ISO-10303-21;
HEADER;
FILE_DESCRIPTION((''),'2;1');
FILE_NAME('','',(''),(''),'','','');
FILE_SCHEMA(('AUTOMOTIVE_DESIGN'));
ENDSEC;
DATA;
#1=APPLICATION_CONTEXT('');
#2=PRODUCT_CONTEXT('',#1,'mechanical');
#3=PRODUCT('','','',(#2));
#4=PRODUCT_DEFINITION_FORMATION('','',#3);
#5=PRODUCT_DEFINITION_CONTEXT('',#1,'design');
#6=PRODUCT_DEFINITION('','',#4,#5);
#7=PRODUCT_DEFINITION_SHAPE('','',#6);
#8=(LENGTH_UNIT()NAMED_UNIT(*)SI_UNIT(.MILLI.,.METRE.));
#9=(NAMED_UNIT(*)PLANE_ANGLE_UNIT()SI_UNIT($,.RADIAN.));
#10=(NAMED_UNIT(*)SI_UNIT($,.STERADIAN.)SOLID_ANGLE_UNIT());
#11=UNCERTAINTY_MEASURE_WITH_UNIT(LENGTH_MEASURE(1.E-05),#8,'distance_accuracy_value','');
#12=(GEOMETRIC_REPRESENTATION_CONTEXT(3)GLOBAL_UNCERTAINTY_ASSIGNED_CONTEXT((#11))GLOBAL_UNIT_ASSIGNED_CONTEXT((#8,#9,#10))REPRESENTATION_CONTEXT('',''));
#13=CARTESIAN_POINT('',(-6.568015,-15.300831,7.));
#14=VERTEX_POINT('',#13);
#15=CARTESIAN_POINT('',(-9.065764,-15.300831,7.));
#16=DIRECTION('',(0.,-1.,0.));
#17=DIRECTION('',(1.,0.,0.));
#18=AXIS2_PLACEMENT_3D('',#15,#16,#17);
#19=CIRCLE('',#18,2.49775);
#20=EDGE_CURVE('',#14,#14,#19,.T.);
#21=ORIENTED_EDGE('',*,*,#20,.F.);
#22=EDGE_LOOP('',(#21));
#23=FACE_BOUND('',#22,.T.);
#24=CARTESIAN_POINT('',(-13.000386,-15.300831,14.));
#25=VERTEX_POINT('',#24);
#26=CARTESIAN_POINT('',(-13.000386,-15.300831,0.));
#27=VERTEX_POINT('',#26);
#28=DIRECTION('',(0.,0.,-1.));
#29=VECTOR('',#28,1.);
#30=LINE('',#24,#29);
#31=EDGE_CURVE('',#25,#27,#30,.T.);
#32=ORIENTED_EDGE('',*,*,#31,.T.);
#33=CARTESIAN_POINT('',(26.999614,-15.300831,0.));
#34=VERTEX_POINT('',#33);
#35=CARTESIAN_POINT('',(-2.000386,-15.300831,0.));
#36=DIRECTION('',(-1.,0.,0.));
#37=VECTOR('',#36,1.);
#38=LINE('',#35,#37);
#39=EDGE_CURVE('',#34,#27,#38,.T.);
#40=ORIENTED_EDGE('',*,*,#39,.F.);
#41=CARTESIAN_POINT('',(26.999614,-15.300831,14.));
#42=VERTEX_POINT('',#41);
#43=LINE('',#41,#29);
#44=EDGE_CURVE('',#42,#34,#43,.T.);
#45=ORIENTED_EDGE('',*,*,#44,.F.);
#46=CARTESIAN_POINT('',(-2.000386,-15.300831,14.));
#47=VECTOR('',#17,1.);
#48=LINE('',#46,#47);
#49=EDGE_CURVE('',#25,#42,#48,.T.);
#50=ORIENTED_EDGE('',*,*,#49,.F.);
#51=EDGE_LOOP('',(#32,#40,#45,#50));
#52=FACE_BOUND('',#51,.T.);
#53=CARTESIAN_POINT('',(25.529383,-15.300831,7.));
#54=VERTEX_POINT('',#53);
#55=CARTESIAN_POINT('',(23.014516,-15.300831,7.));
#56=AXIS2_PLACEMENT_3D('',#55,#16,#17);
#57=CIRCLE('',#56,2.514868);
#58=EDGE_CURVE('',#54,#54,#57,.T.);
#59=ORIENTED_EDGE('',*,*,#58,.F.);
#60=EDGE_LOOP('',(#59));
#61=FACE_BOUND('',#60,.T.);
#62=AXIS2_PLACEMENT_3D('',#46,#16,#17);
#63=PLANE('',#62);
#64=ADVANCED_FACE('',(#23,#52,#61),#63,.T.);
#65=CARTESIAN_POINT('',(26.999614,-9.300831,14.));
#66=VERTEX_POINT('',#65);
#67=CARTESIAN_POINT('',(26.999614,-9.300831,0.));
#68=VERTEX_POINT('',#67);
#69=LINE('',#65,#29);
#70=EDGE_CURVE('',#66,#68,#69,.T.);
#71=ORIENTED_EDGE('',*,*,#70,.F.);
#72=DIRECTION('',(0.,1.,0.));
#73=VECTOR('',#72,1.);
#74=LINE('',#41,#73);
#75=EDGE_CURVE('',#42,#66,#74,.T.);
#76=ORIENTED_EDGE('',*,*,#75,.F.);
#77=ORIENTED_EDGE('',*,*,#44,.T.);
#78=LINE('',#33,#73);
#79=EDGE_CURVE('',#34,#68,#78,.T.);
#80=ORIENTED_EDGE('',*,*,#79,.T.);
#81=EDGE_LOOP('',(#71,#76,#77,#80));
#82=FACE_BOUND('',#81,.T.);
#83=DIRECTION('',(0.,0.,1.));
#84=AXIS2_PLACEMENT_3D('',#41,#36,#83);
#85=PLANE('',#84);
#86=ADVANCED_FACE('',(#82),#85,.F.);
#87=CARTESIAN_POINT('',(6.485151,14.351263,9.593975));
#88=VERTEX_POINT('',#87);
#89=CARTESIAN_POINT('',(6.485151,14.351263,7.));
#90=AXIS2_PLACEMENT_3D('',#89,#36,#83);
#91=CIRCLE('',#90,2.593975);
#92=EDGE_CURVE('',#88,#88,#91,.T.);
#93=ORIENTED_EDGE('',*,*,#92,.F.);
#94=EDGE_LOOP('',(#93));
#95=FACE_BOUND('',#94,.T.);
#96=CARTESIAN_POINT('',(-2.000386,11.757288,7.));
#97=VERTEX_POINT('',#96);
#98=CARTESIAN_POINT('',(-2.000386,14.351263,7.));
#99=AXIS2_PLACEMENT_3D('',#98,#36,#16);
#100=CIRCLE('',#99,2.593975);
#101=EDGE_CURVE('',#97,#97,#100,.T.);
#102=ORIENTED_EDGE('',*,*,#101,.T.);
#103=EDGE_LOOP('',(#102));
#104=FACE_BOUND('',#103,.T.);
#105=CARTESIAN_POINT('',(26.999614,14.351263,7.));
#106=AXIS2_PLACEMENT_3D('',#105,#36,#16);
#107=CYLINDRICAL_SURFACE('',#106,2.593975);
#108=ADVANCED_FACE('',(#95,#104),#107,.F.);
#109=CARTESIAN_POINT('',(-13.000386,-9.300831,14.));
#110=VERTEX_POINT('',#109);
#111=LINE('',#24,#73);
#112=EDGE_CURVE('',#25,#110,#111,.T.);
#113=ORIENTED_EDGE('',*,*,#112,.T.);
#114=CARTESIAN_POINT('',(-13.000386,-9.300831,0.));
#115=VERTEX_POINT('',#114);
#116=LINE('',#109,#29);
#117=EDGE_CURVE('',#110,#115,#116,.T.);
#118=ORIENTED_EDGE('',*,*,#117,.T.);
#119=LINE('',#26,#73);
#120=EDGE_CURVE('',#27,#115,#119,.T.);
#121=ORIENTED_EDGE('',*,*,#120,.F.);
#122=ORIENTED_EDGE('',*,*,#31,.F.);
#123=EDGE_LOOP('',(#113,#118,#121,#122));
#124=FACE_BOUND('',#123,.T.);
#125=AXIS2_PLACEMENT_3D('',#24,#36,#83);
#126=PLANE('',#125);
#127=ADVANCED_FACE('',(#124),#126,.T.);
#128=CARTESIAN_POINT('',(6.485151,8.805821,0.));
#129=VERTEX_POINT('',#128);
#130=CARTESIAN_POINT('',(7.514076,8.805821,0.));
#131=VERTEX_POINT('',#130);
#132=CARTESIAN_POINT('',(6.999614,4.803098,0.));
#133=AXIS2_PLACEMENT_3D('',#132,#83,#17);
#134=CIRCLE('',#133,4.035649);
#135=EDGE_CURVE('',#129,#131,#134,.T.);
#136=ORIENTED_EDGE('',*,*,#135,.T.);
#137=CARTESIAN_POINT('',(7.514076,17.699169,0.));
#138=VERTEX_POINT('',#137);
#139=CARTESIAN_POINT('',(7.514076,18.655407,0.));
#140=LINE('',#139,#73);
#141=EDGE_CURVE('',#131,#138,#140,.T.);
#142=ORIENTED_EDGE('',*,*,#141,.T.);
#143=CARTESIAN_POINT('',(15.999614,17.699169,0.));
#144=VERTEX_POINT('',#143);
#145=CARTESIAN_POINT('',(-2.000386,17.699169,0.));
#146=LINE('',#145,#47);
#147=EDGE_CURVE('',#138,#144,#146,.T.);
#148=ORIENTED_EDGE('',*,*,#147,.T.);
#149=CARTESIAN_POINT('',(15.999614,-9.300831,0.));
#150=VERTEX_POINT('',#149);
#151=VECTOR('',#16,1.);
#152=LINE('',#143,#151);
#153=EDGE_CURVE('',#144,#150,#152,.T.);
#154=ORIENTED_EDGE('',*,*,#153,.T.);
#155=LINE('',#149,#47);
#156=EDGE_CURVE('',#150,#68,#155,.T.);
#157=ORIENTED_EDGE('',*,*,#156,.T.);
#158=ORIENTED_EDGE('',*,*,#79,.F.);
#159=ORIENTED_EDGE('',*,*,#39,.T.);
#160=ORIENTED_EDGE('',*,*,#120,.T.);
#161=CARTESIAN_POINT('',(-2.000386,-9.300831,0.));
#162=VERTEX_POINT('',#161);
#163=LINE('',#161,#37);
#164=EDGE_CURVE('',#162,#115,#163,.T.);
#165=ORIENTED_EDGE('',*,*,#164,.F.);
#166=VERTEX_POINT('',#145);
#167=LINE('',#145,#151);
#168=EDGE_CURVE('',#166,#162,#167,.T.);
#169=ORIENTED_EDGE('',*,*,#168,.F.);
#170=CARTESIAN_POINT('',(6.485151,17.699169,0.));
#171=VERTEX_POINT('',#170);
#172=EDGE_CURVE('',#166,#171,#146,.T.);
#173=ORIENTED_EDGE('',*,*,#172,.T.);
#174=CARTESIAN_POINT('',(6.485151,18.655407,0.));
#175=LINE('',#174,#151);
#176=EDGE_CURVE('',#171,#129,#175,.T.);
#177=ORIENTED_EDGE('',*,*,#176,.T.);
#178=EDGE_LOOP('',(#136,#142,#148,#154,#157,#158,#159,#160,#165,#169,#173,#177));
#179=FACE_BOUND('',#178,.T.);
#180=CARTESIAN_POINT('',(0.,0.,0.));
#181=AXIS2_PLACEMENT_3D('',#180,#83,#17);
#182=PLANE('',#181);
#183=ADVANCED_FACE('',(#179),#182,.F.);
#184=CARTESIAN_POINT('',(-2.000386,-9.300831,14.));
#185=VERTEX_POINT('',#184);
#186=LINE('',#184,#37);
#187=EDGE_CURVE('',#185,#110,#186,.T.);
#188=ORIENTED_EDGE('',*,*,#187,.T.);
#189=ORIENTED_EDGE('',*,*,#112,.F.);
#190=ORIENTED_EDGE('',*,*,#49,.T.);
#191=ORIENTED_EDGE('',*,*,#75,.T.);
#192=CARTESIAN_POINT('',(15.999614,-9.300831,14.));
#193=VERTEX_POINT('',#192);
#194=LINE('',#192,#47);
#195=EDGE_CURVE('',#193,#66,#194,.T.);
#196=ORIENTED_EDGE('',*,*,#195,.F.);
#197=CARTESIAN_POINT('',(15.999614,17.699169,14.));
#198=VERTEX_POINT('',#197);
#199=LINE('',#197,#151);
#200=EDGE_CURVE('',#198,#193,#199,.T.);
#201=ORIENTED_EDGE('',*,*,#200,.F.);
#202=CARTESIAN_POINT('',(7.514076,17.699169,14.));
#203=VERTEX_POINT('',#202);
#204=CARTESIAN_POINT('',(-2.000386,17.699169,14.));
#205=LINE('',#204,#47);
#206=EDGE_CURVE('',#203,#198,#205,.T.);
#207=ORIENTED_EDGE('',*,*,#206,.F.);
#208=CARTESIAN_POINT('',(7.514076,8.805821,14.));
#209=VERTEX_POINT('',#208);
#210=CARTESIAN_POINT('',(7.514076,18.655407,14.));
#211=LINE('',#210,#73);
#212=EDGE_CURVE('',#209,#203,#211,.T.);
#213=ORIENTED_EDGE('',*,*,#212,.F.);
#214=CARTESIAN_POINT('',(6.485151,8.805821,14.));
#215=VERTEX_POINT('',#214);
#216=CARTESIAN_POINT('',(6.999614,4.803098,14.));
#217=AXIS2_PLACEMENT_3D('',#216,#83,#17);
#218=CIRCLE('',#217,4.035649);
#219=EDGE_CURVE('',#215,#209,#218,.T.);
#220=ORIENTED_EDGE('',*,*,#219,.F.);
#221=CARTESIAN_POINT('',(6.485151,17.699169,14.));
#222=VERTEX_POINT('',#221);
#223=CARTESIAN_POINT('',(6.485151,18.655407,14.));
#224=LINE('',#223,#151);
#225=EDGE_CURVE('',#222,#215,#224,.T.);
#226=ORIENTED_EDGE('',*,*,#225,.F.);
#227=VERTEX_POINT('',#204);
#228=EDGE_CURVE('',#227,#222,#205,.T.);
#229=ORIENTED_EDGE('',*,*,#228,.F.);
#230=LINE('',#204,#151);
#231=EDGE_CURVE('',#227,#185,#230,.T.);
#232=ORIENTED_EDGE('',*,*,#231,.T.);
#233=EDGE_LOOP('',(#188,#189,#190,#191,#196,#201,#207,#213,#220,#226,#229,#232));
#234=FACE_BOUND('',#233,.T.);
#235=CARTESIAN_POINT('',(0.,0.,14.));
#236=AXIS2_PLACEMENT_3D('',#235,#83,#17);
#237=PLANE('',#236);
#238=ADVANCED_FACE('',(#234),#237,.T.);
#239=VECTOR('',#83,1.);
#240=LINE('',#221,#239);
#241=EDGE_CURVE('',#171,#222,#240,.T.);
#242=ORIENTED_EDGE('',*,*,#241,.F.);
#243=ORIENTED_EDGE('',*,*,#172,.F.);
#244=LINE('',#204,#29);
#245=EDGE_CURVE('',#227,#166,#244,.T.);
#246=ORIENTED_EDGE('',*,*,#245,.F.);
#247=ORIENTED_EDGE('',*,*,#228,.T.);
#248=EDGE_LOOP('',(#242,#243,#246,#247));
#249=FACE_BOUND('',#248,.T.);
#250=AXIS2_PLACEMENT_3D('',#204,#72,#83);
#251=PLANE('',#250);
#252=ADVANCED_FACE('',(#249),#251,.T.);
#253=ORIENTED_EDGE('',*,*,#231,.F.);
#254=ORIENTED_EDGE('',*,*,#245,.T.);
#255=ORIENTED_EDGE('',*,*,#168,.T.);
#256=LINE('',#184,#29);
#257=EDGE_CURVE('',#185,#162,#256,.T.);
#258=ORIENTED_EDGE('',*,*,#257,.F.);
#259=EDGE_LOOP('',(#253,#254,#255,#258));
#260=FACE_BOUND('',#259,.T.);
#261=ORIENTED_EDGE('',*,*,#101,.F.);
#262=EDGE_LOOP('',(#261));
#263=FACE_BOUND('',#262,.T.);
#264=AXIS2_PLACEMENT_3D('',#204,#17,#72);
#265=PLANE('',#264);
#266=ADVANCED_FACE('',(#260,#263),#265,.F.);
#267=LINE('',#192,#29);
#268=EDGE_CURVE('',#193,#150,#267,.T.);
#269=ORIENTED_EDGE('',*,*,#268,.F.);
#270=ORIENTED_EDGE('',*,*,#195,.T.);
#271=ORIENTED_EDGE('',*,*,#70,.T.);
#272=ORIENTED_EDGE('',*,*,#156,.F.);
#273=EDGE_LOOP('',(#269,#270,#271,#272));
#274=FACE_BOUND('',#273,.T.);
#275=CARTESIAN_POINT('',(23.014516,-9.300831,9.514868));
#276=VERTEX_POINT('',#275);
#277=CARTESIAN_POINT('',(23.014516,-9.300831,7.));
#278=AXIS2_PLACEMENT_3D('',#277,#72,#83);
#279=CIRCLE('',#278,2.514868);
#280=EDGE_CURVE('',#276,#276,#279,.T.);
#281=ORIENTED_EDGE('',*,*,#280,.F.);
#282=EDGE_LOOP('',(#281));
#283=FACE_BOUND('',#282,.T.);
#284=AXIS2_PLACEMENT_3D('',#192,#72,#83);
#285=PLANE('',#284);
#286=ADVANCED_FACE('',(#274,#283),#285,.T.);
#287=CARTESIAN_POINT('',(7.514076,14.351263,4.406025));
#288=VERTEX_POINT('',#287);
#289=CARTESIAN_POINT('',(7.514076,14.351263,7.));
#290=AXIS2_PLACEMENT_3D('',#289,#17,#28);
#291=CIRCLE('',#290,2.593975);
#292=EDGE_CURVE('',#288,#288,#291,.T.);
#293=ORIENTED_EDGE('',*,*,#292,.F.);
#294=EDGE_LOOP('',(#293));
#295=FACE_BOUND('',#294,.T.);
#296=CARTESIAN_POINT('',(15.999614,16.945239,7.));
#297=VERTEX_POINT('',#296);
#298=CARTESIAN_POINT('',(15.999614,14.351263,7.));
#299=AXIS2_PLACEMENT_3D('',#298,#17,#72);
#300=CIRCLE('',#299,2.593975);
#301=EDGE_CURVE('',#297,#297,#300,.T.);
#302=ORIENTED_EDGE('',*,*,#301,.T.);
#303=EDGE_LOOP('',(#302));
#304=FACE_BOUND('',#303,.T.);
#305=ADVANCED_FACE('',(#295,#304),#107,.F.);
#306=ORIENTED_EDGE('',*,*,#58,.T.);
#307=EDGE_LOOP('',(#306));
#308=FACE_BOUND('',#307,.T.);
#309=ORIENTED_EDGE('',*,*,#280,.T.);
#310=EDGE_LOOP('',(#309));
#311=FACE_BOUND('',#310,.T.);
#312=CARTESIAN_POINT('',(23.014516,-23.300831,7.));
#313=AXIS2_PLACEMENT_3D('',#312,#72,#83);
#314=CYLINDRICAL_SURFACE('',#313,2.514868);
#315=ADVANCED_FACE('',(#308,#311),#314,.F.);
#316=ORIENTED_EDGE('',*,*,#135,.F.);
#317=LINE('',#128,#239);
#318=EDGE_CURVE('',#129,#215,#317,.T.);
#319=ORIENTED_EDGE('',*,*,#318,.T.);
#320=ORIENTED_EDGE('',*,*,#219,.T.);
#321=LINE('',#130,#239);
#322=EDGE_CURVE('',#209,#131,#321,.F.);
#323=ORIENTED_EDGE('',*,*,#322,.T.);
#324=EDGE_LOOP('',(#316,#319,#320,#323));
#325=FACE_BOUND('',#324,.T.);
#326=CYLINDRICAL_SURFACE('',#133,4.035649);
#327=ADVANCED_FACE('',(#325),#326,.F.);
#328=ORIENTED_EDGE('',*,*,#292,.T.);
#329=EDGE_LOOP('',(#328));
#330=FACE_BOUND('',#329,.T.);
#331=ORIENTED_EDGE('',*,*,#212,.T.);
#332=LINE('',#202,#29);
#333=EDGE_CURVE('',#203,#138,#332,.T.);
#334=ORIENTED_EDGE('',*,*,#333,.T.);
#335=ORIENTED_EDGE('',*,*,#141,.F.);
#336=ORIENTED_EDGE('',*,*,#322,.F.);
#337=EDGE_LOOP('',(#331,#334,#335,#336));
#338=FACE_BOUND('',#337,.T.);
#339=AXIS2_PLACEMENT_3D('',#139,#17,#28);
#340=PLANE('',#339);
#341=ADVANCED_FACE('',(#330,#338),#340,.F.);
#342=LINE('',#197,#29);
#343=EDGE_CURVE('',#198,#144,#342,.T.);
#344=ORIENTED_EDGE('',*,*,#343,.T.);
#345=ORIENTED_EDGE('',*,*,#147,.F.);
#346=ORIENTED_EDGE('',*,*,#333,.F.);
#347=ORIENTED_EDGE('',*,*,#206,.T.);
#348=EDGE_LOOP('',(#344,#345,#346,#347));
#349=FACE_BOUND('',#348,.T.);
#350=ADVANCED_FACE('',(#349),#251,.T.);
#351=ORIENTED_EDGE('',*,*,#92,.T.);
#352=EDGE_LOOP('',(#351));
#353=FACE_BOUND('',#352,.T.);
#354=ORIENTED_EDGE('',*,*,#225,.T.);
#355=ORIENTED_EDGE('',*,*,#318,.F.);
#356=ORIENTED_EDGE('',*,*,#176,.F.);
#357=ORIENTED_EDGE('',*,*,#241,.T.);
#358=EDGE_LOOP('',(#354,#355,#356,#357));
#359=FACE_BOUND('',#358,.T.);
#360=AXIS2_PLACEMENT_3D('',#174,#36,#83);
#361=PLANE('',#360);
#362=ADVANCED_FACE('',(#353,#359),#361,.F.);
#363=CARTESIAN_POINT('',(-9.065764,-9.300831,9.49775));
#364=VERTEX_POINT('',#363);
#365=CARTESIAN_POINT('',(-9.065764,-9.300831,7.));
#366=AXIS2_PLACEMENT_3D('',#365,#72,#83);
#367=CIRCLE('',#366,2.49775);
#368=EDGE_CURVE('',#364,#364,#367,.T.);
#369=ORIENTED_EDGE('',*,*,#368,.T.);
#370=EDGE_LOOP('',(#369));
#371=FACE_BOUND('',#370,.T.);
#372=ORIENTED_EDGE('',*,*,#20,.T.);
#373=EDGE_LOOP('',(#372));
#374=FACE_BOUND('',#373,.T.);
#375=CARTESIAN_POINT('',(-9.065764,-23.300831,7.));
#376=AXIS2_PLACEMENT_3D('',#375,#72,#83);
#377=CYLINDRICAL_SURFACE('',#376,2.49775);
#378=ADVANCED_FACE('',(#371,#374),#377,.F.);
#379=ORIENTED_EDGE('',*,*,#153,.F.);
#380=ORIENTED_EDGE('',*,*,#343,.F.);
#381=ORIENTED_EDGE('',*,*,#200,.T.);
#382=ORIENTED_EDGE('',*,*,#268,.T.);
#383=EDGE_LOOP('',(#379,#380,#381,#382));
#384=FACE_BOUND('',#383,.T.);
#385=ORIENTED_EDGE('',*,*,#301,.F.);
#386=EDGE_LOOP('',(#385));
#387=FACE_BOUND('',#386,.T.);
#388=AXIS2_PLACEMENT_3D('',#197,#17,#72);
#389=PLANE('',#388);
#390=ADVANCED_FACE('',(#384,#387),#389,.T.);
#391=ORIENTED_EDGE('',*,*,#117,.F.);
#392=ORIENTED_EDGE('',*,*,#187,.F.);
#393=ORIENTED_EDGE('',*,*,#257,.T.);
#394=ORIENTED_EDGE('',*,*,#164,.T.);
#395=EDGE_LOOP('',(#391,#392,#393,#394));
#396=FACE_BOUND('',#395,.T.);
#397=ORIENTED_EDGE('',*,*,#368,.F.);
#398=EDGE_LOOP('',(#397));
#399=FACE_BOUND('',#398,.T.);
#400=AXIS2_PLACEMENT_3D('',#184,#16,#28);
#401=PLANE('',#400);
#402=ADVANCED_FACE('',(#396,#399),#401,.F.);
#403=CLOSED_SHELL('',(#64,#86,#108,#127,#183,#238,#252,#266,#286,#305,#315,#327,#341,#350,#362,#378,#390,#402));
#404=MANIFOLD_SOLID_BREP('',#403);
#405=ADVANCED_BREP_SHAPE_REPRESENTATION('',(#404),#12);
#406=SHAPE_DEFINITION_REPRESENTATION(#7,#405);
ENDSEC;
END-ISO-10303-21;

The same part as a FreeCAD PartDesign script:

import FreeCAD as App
import Part
import Sketcher

V = App.Vector
Q = App.Units.Quantity


def add_polygon(sketch, points):
    """Adds a closed chain of lines whose ends are joined by coincident constraints."""
    first, n = sketch.GeometryCount, len(points)
    for a, b in zip(points, points[1:] + points[:1]):
        sketch.addGeometry(Part.LineSegment(App.Vector(*a, 0), App.Vector(*b, 0)), False)
    for i in range(n):
        sketch.addConstraint(Sketcher.Constraint("Coincident", first + i, 2, first + (i + 1) % n, 1))

doc = App.newDocument("Part")
body = doc.addObject("PartDesign::Body", "Body")

# Sketch on XY plane
sketch1 = body.newObject("Sketcher::SketchObject", "Sketch")
sketch1.AttachmentSupport = (doc.getObject("XY_Plane"), [""])
sketch1.MapMode = "FlatFace"
add_polygon(sketch1, [(16, 18), (-2, 18), (-2, -9), (-13, -9), (-13, -15), (27, -15), (27, -9), (16, -9)])  # lines 0-7
sketch1.addConstraint([
    Sketcher.Constraint("Horizontal", 0),
    Sketcher.Constraint("Vertical", 1),
    Sketcher.Constraint("Horizontal", 2),
    Sketcher.Constraint("Vertical", 3),
    Sketcher.Constraint("Horizontal", 4),
    Sketcher.Constraint("Vertical", 5),
    Sketcher.Constraint("Horizontal", 6),
    Sketcher.Constraint("Vertical", 7),
    Sketcher.Constraint("Horizontal", 2, 2, 5, 2),
    Sketcher.Constraint("Equal", 2, 6),
    Sketcher.Constraint("DistanceX", 0, 2, 0, 1, Q("18 mm")),
    Sketcher.Constraint("DistanceX", 2, 2, 2, 1, Q("11 mm")),
    Sketcher.Constraint("DistanceY", 1, 2, 1, 1, Q("27 mm")),
    Sketcher.Constraint("DistanceY", 3, 2, 3, 1, Q("6 mm")),
    Sketcher.Constraint("DistanceY", -1, 1, 0, 2, Q("17.699169 mm")),
    Sketcher.Constraint("DistanceX", 0, 2, -1, 1, Q("2.000386 mm")),
])
pad1 = body.newObject("PartDesign::Pad", "Pad")
pad1.Profile = sketch1
pad1.Length = 14

# Sketch on XY plane
sketch2 = body.newObject("Sketcher::SketchObject", "Sketch001")
sketch2.AttachmentSupport = (doc.getObject("XY_Plane"), [""])
sketch2.MapMode = "FlatFace"
sketch2.AttachmentOffset = App.Placement(V(0, 0, 14), App.Rotation())
sketch2.addGeometry(Part.Circle(V(7, 4.8, 0), V(0, 0, 1), 4), False)
sketch2.addConstraint([
    Sketcher.Constraint("Diameter", 0, Q("8.071299 mm")),
    Sketcher.Constraint("DistanceX", -1, 1, 0, 3, Q("6.999614 mm")),
    Sketcher.Constraint("DistanceY", -1, 1, 0, 3, Q("4.803098 mm")),
])
pocket1 = body.newObject("PartDesign::Pocket", "Pocket")
pocket1.Profile = sketch2
pocket1.Length = 14

# Sketch on XZ plane
sketch3 = body.newObject("Sketcher::SketchObject", "Sketch002")
sketch3.AttachmentSupport = (doc.getObject("XZ_Plane"), [""])
sketch3.MapMode = "FlatFace"
sketch3.AttachmentOffset = App.Placement(V(0, 0, 9.300831), App.Rotation())
sketch3.addGeometry(Part.Circle(V(-9.1, 7, 0), V(0, 0, 1), 2.5), False)
sketch3.addConstraint([
    Sketcher.Constraint("DistanceY", -1, 1, 0, 3, Q("7 mm")),
    Sketcher.Constraint("Diameter", 0, Q("4.995499 mm")),
    Sketcher.Constraint("DistanceX", 0, 3, -1, 1, Q("9.065764 mm")),
])
pocket2 = body.newObject("PartDesign::Pocket", "Pocket001")
pocket2.Profile = sketch3
pocket2.Length = 14
pocket2.Reversed = True

# Sketch on XZ plane
sketch4 = body.newObject("Sketcher::SketchObject", "Sketch003")
sketch4.AttachmentSupport = (doc.getObject("XZ_Plane"), [""])
sketch4.MapMode = "FlatFace"
sketch4.AttachmentOffset = App.Placement(V(0, 0, 9.300831), App.Rotation())
sketch4.addGeometry(Part.Circle(V(23, 7, 0), V(0, 0, 1), 2.5), False)
sketch4.addConstraint([
    Sketcher.Constraint("DistanceY", -1, 1, 0, 3, Q("7 mm")),
    Sketcher.Constraint("Diameter", 0, Q("5.029735 mm")),
    Sketcher.Constraint("DistanceX", -1, 1, 0, 3, Q("23.014516 mm")),
])
pocket3 = body.newObject("PartDesign::Pocket", "Pocket002")
pocket3.Profile = sketch4
pocket3.Length = 14
pocket3.Reversed = True

# Sketch on XY plane
sketch5 = body.newObject("Sketcher::SketchObject", "Sketch004")
sketch5.AttachmentSupport = (doc.getObject("XY_Plane"), [""])
sketch5.MapMode = "FlatFace"
sketch5.AttachmentOffset = App.Placement(V(0, 0, 14), App.Rotation())
add_polygon(sketch5, [(6.5, 18.7), (6.5, 8.2), (7.5, 8.2), (7.5, 18.7)])  # lines 0-3
sketch5.addConstraint([
    Sketcher.Constraint("Vertical", 0),
    Sketcher.Constraint("Horizontal", 1),
    Sketcher.Constraint("Vertical", 2),
    Sketcher.Constraint("Horizontal", 3),
    Sketcher.Constraint("DistanceY", 0, 2, 0, 1, Q("10.439451 mm")),
    Sketcher.Constraint("DistanceX", 1, 1, 1, 2, Q("1.028925 mm")),
    Sketcher.Constraint("DistanceX", -1, 1, 0, 2, Q("6.485151 mm")),
    Sketcher.Constraint("DistanceY", -1, 1, 0, 2, Q("8.215957 mm")),
])
pocket4 = body.newObject("PartDesign::Pocket", "Pocket003")
pocket4.Profile = sketch5
pocket4.Length = 14

# Sketch on YZ plane
sketch6 = body.newObject("Sketcher::SketchObject", "Sketch005")
sketch6.AttachmentSupport = (doc.getObject("YZ_Plane"), [""])
sketch6.MapMode = "FlatFace"
sketch6.AttachmentOffset = App.Placement(V(0, 0, -2.000386), App.Rotation())
sketch6.addGeometry(Part.Circle(V(14.4, 7, 0), V(0, 0, 1), 2.6), False)
sketch6.addConstraint([
    Sketcher.Constraint("DistanceY", -1, 1, 0, 3, Q("7 mm")),
    Sketcher.Constraint("Diameter", 0, Q("5.187951 mm")),
    Sketcher.Constraint("DistanceX", -1, 1, 0, 3, Q("14.351263 mm")),
])
pocket5 = body.newObject("PartDesign::Pocket", "Pocket004")
pocket5.Profile = sketch6
pocket5.Type = "ThroughAll"
pocket5.Reversed = True

doc.recompute()
